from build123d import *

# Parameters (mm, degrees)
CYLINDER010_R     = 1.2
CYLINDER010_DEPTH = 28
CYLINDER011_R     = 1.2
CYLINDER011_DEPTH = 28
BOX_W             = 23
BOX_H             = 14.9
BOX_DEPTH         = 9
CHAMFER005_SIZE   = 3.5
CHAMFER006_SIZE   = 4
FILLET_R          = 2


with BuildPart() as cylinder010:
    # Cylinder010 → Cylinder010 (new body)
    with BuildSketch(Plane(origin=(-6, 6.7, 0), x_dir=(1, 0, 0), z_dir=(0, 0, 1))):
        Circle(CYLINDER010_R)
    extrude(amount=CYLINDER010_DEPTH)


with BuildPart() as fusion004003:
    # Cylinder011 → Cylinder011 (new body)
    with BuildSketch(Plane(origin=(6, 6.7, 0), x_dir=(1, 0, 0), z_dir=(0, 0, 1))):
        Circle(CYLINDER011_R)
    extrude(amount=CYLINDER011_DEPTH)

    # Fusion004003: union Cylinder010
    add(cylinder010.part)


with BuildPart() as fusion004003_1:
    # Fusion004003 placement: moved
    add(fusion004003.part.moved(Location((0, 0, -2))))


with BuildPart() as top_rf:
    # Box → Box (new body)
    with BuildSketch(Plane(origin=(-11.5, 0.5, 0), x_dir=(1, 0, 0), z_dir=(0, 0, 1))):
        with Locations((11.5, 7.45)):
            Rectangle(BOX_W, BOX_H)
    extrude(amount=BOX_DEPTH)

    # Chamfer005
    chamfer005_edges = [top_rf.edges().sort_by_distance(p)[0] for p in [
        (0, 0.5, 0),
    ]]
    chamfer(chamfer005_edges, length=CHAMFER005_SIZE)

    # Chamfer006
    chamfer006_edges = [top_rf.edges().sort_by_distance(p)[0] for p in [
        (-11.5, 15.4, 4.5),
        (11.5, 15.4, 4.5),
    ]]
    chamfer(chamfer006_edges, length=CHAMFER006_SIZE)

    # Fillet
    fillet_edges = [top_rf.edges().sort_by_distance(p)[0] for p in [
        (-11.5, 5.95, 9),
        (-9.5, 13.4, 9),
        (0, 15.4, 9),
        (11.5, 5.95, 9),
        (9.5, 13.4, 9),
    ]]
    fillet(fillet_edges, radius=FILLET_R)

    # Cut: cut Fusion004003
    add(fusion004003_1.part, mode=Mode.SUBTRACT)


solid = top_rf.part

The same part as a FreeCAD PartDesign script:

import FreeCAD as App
import Part
import Sketcher
from FreeCAD import Vector
Q = App.Units.Quantity


def edges_at(feature, points):
    """Names of the edges that pass closest to the given points."""
    edges = feature.Shape.Edges
    near = lambda p: min(range(len(edges)), key=lambda i: edges[i].distToShape(Part.Vertex(*p))[0])
    return sorted({f"Edge{near(p) + 1}" for p in points})


def add_polygon(sketch, points):
    """Adds a closed chain of lines whose ends are joined by coincident constraints."""
    first, n = sketch.GeometryCount, len(points)
    for a, b in zip(points, points[1:] + points[:1]):
        sketch.addGeometry(Part.LineSegment(App.Vector(*a, 0), App.Vector(*b, 0)), False)
    for i in range(n):
        sketch.addConstraint(Sketcher.Constraint("Coincident", first + i, 2, first + (i + 1) % n, 1))

doc = App.newDocument("Part")
body = doc.addObject("PartDesign::Body", "Body")

# Sketch on XY plane
sketch1 = doc.addObject("Sketcher::SketchObject", "Sketch")
body.addObject(sketch1)
sketch1.AttachmentSupport = (doc.XY_Plane, [""])
sketch1.MapMode = "FlatFace"
sketch1.addGeometry(Part.Circle(Vector(-6, 6.7, 0), Vector(0, 0, 1), 1.2), False)
sketch1.addConstraint([
    Sketcher.Constraint("Diameter", 0, Q("2.4 mm")),
    Sketcher.Constraint("DistanceX", 0, 3, -1, 1, Q("6 mm")),
    Sketcher.Constraint("DistanceY", -1, 1, 0, 3, Q("6.7 mm")),
])
pad1 = doc.addObject("PartDesign::Pad", "Pad")
body.addObject(pad1)
pad1.Profile = sketch1
pad1.Length = 28
body2 = doc.addObject("PartDesign::Body", "Body001")
body2.AllowCompound = True

# Sketch on XY plane
sketch2 = doc.addObject("Sketcher::SketchObject", "Sketch001")
body2.addObject(sketch2)
sketch2.AttachmentSupport = (doc.getObject("XY_Plane001"), [""])
sketch2.MapMode = "FlatFace"
sketch2.addGeometry(Part.Circle(Vector(6, 6.7, 0), Vector(0, 0, 1), 1.2), False)
sketch2.addConstraint([
    Sketcher.Constraint("Diameter", 0, Q("2.4 mm")),
    Sketcher.Constraint("DistanceX", -1, 1, 0, 3, Q("6 mm")),
    Sketcher.Constraint("DistanceY", -1, 1, 0, 3, Q("6.7 mm")),
])
pad2 = doc.addObject("PartDesign::Pad", "Pad001")
body2.addObject(pad2)
pad2.Profile = sketch2
pad2.Length = 28
doc.recompute()

boolean = doc.addObject("PartDesign::Boolean", "Boolean")
body2.addObject(boolean)
boolean.Type = "Fuse"
boolean.addObjects([body])
body3 = doc.addObject("PartDesign::Body", "Body002")
body3.AllowCompound = True
doc.recompute()

body2.Placement = App.Placement(Vector(0, 0, -2), App.Rotation(Vector(0, 0, 1), 0))
boolean2 = doc.addObject("PartDesign::Boolean", "Boolean001")
body3.addObject(boolean2)
boolean2.Type = "Fuse"
boolean2.addObjects([body2])
body4 = doc.addObject("PartDesign::Body", "Body003")

# Sketch on XY plane
sketch3 = doc.addObject("Sketcher::SketchObject", "Sketch002")
body4.addObject(sketch3)
sketch3.AttachmentSupport = (doc.getObject("XY_Plane003"), [""])
sketch3.MapMode = "FlatFace"
add_polygon(sketch3, [(-12, 15), (-12, 0), (12, 0), (12, 15)])  # lines 0-3
sketch3.addConstraint([
    Sketcher.Constraint("Vertical", 0),
    Sketcher.Constraint("Horizontal", 1),
    Sketcher.Constraint("Vertical", 2),
    Sketcher.Constraint("Horizontal", 3),
    Sketcher.Constraint("DistanceX", 1, 1, 1, 2, Q("23 mm")),
    Sketcher.Constraint("DistanceY", 0, 2, 0, 1, Q("14.9 mm")),
    Sketcher.Constraint("DistanceX", 0, 2, -1, 1, Q("11.5 mm")),
    Sketcher.Constraint("DistanceY", -1, 1, 0, 2, Q("0.5 mm")),
])
pad3 = doc.addObject("PartDesign::Pad", "Pad002")
body4.addObject(pad3)
pad3.Profile = sketch3
pad3.Length = 9
doc.recompute()

chamfer = doc.addObject("PartDesign::Chamfer", "Chamfer")
body4.addObject(chamfer)
chamfer.Base = (pad3, edges_at(pad3, [(0, 0.5, 0)]))
chamfer.Size = 3.5
doc.recompute()

chamfer2 = doc.addObject("PartDesign::Chamfer", "Chamfer001")
body4.addObject(chamfer2)
chamfer2.Base = (chamfer, edges_at(chamfer, [(-11.5, 15.4, 4.5), (11.5, 15.4, 4.5)]))
chamfer2.Size = 4
doc.recompute()

fillet = doc.addObject("PartDesign::Fillet", "Fillet")
body4.addObject(fillet)
fillet.Base = (chamfer2, edges_at(chamfer2, [
    (-11.5, 5.95, 9),
    (-9.5, 13.4, 9),
    (0, 15.4, 9),
    (11.5, 5.95, 9),
    (9.5, 13.4, 9),
]))
fillet.Radius = 2
doc.recompute()

boolean3 = doc.addObject("PartDesign::Boolean", "Boolean002")
body4.addObject(boolean3)
boolean3.Type = "Cut"
boolean3.addObjects([body3])

doc.recompute()
